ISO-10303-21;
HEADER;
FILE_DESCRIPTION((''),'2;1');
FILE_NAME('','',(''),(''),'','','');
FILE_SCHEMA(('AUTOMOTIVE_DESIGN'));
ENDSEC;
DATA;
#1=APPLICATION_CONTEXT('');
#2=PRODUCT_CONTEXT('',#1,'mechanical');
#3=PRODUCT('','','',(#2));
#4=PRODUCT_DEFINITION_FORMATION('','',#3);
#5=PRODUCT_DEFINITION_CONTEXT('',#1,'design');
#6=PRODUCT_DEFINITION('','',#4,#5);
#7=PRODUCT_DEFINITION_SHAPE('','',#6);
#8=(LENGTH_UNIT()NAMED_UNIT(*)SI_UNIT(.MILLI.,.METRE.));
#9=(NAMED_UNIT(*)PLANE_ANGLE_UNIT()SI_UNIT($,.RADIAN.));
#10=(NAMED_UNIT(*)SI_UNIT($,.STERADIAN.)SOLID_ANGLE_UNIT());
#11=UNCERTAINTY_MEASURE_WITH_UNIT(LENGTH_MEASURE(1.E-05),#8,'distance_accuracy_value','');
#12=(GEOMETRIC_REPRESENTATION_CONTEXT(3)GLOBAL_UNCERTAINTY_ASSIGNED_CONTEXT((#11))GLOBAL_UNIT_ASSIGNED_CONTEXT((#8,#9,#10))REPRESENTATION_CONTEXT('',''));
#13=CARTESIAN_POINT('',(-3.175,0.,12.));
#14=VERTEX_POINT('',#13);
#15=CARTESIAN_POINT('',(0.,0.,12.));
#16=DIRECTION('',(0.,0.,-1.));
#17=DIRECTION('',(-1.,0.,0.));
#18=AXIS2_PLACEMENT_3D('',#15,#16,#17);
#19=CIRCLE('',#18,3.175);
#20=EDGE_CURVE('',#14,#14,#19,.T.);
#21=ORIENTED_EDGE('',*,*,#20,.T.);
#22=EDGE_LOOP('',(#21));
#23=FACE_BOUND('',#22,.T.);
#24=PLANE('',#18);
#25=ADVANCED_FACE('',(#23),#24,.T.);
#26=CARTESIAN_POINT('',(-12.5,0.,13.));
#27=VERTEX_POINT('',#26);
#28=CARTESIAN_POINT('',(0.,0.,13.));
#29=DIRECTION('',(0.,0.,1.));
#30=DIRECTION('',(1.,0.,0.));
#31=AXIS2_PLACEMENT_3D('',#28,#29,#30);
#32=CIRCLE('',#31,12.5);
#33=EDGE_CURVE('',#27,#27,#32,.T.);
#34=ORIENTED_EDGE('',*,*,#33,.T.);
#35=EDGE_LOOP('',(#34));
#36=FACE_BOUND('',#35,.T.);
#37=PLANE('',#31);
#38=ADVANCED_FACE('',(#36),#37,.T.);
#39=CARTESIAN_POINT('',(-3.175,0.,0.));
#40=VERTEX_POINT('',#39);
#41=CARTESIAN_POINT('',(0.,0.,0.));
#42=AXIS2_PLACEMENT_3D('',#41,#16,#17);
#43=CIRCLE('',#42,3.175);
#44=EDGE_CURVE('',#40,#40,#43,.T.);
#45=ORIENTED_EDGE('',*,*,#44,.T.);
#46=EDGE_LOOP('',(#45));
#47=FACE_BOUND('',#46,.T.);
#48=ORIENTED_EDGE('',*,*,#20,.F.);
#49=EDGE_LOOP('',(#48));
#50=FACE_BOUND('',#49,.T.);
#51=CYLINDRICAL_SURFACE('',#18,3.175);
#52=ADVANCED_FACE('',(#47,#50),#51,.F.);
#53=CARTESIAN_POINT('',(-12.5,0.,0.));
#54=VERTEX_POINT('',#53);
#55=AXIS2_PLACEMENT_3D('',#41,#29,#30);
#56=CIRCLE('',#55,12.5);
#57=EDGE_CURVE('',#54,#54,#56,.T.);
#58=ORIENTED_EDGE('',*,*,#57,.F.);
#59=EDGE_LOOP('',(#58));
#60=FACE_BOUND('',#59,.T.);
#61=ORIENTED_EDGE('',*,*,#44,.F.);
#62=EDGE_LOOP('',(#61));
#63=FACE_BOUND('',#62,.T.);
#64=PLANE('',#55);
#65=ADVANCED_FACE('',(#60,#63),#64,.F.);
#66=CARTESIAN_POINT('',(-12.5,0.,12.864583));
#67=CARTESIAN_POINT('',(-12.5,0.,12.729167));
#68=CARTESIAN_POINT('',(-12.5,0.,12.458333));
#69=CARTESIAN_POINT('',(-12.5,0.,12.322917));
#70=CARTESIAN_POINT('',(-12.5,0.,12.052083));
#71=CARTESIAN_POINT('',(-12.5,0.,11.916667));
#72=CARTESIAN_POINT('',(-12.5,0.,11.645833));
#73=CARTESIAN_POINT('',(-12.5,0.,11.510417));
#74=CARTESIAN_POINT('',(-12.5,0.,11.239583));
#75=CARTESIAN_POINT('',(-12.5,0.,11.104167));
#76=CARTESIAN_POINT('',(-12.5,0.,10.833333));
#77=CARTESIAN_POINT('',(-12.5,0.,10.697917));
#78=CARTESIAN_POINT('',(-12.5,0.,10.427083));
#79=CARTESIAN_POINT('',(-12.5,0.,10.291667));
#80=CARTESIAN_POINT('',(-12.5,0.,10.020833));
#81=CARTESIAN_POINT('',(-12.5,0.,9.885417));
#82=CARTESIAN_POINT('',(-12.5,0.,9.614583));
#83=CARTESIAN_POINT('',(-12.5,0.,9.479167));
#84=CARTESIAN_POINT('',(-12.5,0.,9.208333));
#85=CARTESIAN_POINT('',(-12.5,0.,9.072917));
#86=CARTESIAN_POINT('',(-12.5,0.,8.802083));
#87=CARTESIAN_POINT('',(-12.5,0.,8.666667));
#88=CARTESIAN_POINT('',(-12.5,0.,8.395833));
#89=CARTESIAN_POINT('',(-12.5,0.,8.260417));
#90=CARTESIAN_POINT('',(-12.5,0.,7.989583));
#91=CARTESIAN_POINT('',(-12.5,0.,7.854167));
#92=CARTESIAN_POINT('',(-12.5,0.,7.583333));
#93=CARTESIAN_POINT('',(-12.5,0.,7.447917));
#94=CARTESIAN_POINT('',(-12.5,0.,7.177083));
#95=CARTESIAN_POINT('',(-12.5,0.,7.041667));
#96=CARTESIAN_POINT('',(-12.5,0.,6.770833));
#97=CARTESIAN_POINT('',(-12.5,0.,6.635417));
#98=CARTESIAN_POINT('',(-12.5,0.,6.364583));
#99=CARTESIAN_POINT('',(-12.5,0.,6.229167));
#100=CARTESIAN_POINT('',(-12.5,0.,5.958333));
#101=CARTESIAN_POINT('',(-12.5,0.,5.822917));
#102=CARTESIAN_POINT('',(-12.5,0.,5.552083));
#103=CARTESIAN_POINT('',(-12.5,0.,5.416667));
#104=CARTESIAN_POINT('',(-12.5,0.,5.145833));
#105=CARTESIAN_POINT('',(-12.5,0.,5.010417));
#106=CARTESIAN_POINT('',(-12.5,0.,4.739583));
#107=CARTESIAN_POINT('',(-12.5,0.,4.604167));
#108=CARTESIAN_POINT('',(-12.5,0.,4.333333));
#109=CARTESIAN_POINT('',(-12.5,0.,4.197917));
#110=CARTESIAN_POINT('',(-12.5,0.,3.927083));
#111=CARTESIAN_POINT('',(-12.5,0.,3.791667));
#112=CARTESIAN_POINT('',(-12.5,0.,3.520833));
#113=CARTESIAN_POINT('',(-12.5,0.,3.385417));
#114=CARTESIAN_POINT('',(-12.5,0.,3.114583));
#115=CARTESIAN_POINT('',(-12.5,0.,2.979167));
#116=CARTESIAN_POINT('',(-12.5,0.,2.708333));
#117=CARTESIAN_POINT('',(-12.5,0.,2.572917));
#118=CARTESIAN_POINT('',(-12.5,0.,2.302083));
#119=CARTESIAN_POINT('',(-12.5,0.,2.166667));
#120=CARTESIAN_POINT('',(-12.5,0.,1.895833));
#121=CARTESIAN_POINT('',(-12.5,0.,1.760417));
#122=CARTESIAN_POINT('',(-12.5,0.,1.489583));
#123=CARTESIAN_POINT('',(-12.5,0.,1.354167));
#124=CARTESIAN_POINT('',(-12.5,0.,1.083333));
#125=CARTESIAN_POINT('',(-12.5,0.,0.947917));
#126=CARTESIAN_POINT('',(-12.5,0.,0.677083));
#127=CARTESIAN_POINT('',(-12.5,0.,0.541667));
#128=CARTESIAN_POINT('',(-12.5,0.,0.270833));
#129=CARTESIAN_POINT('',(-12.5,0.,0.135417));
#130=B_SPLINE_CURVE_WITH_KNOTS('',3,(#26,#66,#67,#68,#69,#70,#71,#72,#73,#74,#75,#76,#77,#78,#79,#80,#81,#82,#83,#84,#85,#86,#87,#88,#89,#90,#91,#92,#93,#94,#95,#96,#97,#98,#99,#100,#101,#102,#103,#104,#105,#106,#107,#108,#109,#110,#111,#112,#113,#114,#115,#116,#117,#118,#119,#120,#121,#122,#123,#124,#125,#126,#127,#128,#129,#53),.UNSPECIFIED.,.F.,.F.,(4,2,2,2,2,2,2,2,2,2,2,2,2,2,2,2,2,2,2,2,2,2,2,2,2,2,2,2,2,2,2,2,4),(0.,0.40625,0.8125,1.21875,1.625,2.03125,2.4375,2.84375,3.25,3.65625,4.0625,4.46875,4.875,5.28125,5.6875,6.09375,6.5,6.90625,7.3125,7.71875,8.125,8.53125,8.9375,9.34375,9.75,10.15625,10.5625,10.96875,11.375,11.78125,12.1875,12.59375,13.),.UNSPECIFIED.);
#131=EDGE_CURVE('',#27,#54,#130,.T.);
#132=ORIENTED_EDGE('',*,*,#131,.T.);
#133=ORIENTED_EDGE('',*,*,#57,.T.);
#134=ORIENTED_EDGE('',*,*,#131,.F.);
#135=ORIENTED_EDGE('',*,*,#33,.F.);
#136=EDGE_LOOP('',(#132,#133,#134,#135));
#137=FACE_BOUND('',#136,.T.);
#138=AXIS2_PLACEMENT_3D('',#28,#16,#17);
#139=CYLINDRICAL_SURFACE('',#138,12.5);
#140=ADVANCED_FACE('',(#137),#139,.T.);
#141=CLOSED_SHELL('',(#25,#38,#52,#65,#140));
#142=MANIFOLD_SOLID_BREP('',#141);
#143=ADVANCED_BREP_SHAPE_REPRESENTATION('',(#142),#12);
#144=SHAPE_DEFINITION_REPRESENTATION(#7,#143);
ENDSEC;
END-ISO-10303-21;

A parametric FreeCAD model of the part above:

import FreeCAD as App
import Part
import Sketcher
Q = App.Units.Quantity

doc = App.newDocument("Part")
body = doc.addObject("PartDesign::Body", "Body")

# Sketch on XY plane
sketch1 = doc.addObject("Sketcher::SketchObject", "Sketch")
body.addObject(sketch1)
sketch1.AttachmentSupport = (doc.XY_Plane, [""])
sketch1.MapMode = "FlatFace"
sketch1.addGeometry(Part.Circle(App.Vector(0, 0, 0), App.Vector(0, 0, 1), 12), False)
sketch1.addConstraint([
    Sketcher.Constraint("Coincident", 0, 3, -1, 1),
    Sketcher.Constraint("Diameter", 0, Q("25 mm")),
])
pad1 = doc.addObject("PartDesign::Pad", "Pad")
body.addObject(pad1)
pad1.Profile = sketch1
pad1.Length = 13

# Sketch on XY plane
sketch2 = doc.addObject("Sketcher::SketchObject", "Sketch001")
body.addObject(sketch2)
sketch2.AttachmentSupport = (doc.XY_Plane, [""])
sketch2.MapMode = "FlatFace"
sketch2.addGeometry(Part.Circle(App.Vector(0, 0, 0), App.Vector(0, 0, 1), 3.2), False)
sketch2.addConstraint([
    Sketcher.Constraint("Coincident", 0, 3, -1, 1),
    Sketcher.Constraint("Diameter", 0, Q("6.35 mm")),
])
pocket1 = doc.addObject("PartDesign::Pocket", "Pocket")
body.addObject(pocket1)
pocket1.Profile = sketch2
pocket1.Length = 12
pocket1.Reversed = True

doc.recompute()
